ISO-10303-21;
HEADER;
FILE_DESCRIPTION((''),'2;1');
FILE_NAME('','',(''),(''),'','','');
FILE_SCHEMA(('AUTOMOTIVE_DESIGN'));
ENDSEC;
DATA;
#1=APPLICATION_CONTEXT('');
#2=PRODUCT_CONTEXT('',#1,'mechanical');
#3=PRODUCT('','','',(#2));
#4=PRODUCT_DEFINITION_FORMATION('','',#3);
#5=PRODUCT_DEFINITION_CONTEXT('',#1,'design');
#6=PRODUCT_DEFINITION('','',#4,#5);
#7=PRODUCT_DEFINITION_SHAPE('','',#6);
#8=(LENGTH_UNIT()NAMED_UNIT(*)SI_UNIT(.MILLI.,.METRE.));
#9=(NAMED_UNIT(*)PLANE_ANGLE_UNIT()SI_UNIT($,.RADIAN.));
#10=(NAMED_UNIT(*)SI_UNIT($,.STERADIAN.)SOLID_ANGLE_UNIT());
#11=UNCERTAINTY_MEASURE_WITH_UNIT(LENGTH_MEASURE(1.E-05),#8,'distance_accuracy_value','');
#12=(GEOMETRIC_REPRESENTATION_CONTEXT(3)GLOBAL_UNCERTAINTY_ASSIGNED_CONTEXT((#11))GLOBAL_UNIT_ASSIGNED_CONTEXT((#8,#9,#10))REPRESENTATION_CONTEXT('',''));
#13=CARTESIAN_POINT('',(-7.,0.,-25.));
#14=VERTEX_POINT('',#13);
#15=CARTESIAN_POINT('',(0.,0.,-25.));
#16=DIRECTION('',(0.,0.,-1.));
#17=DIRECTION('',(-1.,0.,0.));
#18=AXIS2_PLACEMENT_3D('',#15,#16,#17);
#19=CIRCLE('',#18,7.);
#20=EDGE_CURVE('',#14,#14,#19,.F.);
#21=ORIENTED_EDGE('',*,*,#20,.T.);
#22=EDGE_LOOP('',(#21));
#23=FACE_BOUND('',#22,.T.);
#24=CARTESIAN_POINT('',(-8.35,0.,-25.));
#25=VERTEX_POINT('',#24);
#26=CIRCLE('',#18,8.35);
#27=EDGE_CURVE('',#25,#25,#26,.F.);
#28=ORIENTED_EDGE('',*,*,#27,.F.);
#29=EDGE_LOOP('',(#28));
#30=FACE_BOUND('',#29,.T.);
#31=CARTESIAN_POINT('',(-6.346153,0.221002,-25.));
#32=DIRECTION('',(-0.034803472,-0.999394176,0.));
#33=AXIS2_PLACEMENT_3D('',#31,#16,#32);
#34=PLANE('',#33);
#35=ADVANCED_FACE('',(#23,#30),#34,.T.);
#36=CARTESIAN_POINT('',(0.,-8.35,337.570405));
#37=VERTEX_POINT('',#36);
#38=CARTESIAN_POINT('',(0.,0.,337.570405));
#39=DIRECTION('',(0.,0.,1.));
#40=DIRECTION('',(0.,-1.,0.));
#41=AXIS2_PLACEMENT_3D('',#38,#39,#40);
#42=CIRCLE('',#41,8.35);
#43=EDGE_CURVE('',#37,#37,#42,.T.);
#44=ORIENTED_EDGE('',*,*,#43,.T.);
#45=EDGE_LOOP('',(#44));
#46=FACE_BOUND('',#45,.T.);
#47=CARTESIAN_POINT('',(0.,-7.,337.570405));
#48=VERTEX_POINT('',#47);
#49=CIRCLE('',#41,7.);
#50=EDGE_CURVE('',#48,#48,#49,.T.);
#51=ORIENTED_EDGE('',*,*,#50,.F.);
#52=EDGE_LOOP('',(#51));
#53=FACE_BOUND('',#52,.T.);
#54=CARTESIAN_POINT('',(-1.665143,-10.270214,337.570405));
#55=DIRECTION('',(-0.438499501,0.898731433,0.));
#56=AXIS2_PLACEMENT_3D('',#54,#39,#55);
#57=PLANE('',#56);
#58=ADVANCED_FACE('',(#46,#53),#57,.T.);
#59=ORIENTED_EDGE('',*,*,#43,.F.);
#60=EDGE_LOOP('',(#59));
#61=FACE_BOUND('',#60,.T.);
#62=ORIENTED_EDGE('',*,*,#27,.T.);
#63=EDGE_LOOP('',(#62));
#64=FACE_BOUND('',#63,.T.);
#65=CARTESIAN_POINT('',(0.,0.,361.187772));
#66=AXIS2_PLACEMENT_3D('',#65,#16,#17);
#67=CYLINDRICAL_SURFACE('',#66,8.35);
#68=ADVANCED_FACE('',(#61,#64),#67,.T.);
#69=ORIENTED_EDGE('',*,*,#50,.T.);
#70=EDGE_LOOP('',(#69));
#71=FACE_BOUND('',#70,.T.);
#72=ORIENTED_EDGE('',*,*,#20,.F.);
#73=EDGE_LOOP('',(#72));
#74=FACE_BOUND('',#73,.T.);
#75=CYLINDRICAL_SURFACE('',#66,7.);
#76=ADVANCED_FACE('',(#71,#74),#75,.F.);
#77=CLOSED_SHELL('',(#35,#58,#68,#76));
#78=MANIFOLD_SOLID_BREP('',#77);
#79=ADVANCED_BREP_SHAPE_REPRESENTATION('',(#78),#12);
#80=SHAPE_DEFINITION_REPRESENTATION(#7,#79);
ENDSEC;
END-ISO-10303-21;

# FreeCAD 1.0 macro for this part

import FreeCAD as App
import Part
import Sketcher

V = App.Vector
Q = App.Units.Quantity

doc = App.newDocument("Part")
params = doc.addObject("Spreadsheet::Sheet", "Params")
for row, (alias, value) in enumerate([
    ("sketch1_diameter", "14 mm"),
    ("sketch1_diameter2", "16.7 mm"),
    ("pad1_length", "337.570405 mm"),
    ("pad1_length2", "25 mm"),
], start=1):
    params.set(f"A{row}", alias)
    params.set(f"B{row}", "=" + value)
    params.setAlias(f"B{row}", alias)

body = doc.addObject("PartDesign::Body", "Body")

# Sketch on XY plane
sketch1 = body.newObject("Sketcher::SketchObject", "Sketch")
sketch1.AttachmentSupport = (doc.getObject("XY_Plane"), [""])
sketch1.MapMode = "FlatFace"
sketch1.addGeometry([
    Part.Circle(V(0, 0, 0), V(0, 0, 1), 8),
    Part.Circle(V(0, 0, 0), V(0, 0, 1), 7),
], False)
sketch1.addConstraint([
    Sketcher.Constraint("Coincident", 0, 3, -1, 1),
    Sketcher.Constraint("Coincident", 1, 3, -1, 1),
    Sketcher.Constraint("Diameter", 1, Q("14 mm")),
    Sketcher.Constraint("Diameter", 0, Q("16.7 mm")),
])
sketch1.setExpression("Constraints[2]", "Params.sketch1_diameter")
sketch1.setExpression("Constraints[3]", "Params.sketch1_diameter2")
pad1 = body.newObject("PartDesign::Pad", "Pad")
pad1.Profile = sketch1
pad1.Type = "TwoLengths"
pad1.setExpression("Length", "Params.pad1_length")
pad1.setExpression("Length2", "Params.pad1_length2")

doc.recompute()
